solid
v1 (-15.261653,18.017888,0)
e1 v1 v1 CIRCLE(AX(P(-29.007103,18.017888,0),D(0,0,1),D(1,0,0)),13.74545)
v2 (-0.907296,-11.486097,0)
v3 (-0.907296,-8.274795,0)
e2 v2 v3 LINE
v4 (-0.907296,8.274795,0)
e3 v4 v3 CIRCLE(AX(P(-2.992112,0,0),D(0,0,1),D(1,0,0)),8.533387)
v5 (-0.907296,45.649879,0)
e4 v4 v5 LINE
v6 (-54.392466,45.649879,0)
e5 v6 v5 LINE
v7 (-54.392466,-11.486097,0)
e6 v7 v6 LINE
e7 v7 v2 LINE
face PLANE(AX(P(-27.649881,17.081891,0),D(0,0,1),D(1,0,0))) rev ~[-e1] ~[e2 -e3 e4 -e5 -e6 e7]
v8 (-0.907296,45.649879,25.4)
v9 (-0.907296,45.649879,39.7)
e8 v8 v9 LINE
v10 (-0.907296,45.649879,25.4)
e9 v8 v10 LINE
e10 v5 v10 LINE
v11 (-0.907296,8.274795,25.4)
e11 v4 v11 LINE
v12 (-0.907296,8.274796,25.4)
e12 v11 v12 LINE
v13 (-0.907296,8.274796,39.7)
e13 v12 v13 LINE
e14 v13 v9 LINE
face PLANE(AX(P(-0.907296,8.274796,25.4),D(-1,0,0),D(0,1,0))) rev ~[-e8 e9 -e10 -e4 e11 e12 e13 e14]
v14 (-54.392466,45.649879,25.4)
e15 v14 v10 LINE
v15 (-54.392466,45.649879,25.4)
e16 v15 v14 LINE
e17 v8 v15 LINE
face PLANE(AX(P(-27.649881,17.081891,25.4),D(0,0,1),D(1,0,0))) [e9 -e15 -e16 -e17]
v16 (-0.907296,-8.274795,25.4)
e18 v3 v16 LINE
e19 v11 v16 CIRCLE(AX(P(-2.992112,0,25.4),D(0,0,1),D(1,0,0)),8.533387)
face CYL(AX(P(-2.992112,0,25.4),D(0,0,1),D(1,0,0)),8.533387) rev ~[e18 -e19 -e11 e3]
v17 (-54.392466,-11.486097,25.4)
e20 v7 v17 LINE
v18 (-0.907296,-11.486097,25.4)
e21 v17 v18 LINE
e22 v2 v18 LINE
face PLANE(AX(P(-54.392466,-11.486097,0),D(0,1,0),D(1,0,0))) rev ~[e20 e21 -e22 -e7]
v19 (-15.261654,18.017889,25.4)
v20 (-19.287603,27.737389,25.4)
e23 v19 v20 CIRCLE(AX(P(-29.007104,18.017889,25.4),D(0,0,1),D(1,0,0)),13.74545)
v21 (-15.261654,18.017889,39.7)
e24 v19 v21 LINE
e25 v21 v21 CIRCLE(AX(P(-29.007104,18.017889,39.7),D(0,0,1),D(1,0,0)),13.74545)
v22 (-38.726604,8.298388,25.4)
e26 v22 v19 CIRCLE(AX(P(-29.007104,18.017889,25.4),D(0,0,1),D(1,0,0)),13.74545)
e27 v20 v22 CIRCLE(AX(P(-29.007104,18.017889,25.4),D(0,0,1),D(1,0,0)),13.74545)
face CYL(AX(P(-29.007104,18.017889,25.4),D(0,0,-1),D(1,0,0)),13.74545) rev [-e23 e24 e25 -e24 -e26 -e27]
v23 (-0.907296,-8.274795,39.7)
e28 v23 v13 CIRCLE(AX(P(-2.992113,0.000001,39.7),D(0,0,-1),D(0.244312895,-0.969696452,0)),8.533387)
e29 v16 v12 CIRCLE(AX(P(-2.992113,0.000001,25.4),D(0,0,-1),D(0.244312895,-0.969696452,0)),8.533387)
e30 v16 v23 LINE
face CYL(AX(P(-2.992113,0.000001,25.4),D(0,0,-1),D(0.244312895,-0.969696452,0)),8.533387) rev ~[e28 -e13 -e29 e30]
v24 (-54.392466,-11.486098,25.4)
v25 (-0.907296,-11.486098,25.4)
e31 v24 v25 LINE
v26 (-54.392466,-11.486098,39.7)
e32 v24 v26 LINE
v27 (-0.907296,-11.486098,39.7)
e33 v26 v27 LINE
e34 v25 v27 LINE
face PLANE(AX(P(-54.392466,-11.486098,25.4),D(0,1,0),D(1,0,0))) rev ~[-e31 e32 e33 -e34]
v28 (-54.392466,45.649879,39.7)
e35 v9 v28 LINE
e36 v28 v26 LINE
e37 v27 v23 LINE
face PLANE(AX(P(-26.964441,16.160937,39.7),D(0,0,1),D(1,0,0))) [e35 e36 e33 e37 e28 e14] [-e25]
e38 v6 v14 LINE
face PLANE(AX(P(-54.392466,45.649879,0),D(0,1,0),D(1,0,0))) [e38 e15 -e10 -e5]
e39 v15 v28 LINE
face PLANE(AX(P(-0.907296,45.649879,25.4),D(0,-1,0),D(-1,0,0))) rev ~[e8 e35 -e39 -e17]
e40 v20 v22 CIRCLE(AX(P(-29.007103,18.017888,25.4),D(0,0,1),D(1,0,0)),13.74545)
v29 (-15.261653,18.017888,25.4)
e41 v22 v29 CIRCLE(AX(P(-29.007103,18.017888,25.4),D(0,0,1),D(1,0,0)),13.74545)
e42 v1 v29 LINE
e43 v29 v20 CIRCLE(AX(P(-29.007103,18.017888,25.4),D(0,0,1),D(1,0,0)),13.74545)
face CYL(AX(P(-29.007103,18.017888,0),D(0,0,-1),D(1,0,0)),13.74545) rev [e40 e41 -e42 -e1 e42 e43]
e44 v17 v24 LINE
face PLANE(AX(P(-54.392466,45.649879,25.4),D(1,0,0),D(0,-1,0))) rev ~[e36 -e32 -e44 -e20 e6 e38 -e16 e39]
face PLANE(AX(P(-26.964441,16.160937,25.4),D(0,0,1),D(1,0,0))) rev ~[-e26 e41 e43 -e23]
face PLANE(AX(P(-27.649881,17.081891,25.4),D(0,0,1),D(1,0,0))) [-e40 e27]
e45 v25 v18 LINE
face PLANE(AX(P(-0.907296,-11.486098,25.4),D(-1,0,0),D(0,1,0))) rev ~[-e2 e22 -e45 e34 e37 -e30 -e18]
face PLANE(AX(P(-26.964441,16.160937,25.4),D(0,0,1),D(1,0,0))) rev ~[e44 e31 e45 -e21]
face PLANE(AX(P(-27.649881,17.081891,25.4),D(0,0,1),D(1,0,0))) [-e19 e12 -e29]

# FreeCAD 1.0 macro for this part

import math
import FreeCAD as App
import Part
import Sketcher

V = App.Vector
Q = App.Units.Quantity


def add_polygon(sketch, points):
    """Adds a closed chain of lines whose ends are joined by coincident constraints."""
    first, n = sketch.GeometryCount, len(points)
    for a, b in zip(points, points[1:] + points[:1]):
        sketch.addGeometry(Part.LineSegment(App.Vector(*a, 0), App.Vector(*b, 0)), False)
    for i in range(n):
        sketch.addConstraint(Sketcher.Constraint("Coincident", first + i, 2, first + (i + 1) % n, 1))

doc = App.newDocument("Part")
params = doc.addObject("Spreadsheet::Sheet", "Params")
for row, (alias, value) in enumerate([
    ("pad1_length", "25.4 mm"),
    ("pad2_length", "14.3 mm"),
], start=1):
    params.set(f"A{row}", alias)
    params.set(f"B{row}", "=" + value)
    params.setAlias(f"B{row}", alias)

body = doc.addObject("PartDesign::Body", "Body")

sketch1 = body.newObject("Sketcher::SketchObject", "Sketch")
sketch1.AttachmentSupport = (doc.getObject("XY_Plane"), [""])
sketch1.MapMode = "FlatFace"
add_polygon(sketch1, [(-54, 46), (-54, -11), (-1, -11), (-1, 46)])
sketch1.addGeometry(Part.Circle(V(-29, 18, 0), V(0, 0, 1), 14), False)
sketch1.addConstraint(Sketcher.Constraint("Vertical", 0))
sketch1.addConstraint(Sketcher.Constraint("Horizontal", 1))
sketch1.addConstraint(Sketcher.Constraint("Vertical", 2))
sketch1.addConstraint(Sketcher.Constraint("Horizontal", 3))
sketch1.addConstraint(Sketcher.Constraint("Diameter", 4, Q("27.4909 mm")))
sketch1.addConstraint(Sketcher.Constraint("DistanceX", 1, 1, 1, 2, Q("53.48517 mm")))
sketch1.addConstraint(Sketcher.Constraint("DistanceY", 0, 2, 0, 1, Q("57.135977 mm")))
sketch1.addConstraint(Sketcher.Constraint("DistanceY", -1, 1, 2, 2, Q("45.649879 mm")))
sketch1.addConstraint(Sketcher.Constraint("DistanceY", 4, 3, 2, 2, Q("27.631991 mm")))
sketch1.addConstraint(Sketcher.Constraint("DistanceX", 4, 3, -1, 1, Q("29.007103 mm")))
sketch1.addConstraint(Sketcher.Constraint("DistanceX", 0, 2, -1, 1, Q("54.392466 mm")))
pad1 = body.newObject("PartDesign::Pad", "Pad")
pad1.Profile = sketch1
pad1.setExpression("Length", "Params.pad1_length")

sketch2 = body.newObject("Sketcher::SketchObject", "Sketch001")
sketch2.AttachmentSupport = (doc.getObject("XY_Plane"), [""])
sketch2.MapMode = "FlatFace"
sketch2.AttachmentOffset = App.Placement(V(0, 0, 25.4), App.Rotation())
sketch2.addGeometry(Part.Circle(V(-3, 0, 0), V(0, 0, 1), 9), False)
sketch2.addConstraint(Sketcher.Constraint("PointOnObject", 0, 3, -1))
sketch2.addConstraint(Sketcher.Constraint("Diameter", 0, Q("17.066774 mm")))
sketch2.addConstraint(Sketcher.Constraint("DistanceX", 0, 3, -1, 1, Q("2.992112 mm")))
pocket1 = body.newObject("PartDesign::Pocket", "Pocket")
pocket1.Profile = sketch2
pocket1.Type = "ThroughAll"

sketch3 = body.newObject("Sketcher::SketchObject", "Sketch002")
sketch3.AttachmentSupport = (doc.getObject("XY_Plane"), [""])
sketch3.MapMode = "FlatFace"
sketch3.AttachmentOffset = App.Placement(V(0, 0, 25.4), App.Rotation())
sketch3.addGeometry(Part.LineSegment(V(-54.4, -11.5, 0), V(-0.9, -11.5, 0)), False)
sketch3.addGeometry(Part.LineSegment(V(-0.9, -11.5, 0), V(-0.9, -8.3, 0)), False)
sketch3.addGeometry(Part.ArcOfCircle(Part.Circle(V(-3, 0, 0), V(0, 0, 1), 8.5), math.radians(76), math.radians(284)), False)
sketch3.addGeometry(Part.LineSegment(V(-0.9, 8.3, 0), V(-0.9, 45.6, 0)), False)
sketch3.addGeometry(Part.LineSegment(V(-0.9, 45.6, 0), V(-54.4, 45.6, 0)), False)
sketch3.addGeometry(Part.LineSegment(V(-54.4, 45.6, 0), V(-54.4, -11.5, 0)), False)
sketch3.addGeometry(Part.Circle(V(-29, 18, 0), V(0, 0, 1), 13.7), False)
sketch3.addConstraint(Sketcher.Constraint("Coincident", 0, 2, 1, 1))
sketch3.addConstraint(Sketcher.Constraint("Coincident", 1, 2, 2, 2))
sketch3.addConstraint(Sketcher.Constraint("Coincident", 2, 1, 3, 1))
sketch3.addConstraint(Sketcher.Constraint("Coincident", 3, 2, 4, 1))
sketch3.addConstraint(Sketcher.Constraint("Coincident", 4, 2, 5, 1))
sketch3.addConstraint(Sketcher.Constraint("Coincident", 5, 2, 0, 1))
sketch3.addConstraint(Sketcher.Constraint("Horizontal", 0))
sketch3.addConstraint(Sketcher.Constraint("Vertical", 1))
sketch3.addConstraint(Sketcher.Constraint("Vertical", 3))
sketch3.addConstraint(Sketcher.Constraint("Horizontal", 4))
sketch3.addConstraint(Sketcher.Constraint("Vertical", 5))
sketch3.addConstraint(Sketcher.Constraint("Symmetric", 1, 2, 2, 1, -1))
sketch3.addConstraint(Sketcher.Constraint("Diameter", 6, Q("27.4909 mm")))
sketch3.addConstraint(Sketcher.Constraint("Radius", 2, Q("8.533387 mm")))
sketch3.addConstraint(Sketcher.Constraint("DistanceX", 0, 1, 0, 2, Q("53.48517 mm")))
sketch3.addConstraint(Sketcher.Constraint("DistanceY", 0, 2, 2, 3, Q("11.486099 mm")))
sketch3.addConstraint(Sketcher.Constraint("DistanceY", 1, 1, 1, 2, Q("3.211303 mm")))
sketch3.addConstraint(Sketcher.Constraint("DistanceY", 3, 1, 3, 2, Q("37.375083 mm")))
sketch3.addConstraint(Sketcher.Constraint("DistanceY", -1, 1, 6, 3, Q("18.017889 mm")))
sketch3.addConstraint(Sketcher.Constraint("DistanceX", 6, 3, 2, 3, Q("26.014991 mm")))
sketch3.addConstraint(Sketcher.Constraint("DistanceX", 2, 3, -1, 1, Q("2.992113 mm")))
pad2 = body.newObject("PartDesign::Pad", "Pad001")
pad2.Profile = sketch3
pad2.setExpression("Length", "Params.pad2_length")

doc.recompute()
